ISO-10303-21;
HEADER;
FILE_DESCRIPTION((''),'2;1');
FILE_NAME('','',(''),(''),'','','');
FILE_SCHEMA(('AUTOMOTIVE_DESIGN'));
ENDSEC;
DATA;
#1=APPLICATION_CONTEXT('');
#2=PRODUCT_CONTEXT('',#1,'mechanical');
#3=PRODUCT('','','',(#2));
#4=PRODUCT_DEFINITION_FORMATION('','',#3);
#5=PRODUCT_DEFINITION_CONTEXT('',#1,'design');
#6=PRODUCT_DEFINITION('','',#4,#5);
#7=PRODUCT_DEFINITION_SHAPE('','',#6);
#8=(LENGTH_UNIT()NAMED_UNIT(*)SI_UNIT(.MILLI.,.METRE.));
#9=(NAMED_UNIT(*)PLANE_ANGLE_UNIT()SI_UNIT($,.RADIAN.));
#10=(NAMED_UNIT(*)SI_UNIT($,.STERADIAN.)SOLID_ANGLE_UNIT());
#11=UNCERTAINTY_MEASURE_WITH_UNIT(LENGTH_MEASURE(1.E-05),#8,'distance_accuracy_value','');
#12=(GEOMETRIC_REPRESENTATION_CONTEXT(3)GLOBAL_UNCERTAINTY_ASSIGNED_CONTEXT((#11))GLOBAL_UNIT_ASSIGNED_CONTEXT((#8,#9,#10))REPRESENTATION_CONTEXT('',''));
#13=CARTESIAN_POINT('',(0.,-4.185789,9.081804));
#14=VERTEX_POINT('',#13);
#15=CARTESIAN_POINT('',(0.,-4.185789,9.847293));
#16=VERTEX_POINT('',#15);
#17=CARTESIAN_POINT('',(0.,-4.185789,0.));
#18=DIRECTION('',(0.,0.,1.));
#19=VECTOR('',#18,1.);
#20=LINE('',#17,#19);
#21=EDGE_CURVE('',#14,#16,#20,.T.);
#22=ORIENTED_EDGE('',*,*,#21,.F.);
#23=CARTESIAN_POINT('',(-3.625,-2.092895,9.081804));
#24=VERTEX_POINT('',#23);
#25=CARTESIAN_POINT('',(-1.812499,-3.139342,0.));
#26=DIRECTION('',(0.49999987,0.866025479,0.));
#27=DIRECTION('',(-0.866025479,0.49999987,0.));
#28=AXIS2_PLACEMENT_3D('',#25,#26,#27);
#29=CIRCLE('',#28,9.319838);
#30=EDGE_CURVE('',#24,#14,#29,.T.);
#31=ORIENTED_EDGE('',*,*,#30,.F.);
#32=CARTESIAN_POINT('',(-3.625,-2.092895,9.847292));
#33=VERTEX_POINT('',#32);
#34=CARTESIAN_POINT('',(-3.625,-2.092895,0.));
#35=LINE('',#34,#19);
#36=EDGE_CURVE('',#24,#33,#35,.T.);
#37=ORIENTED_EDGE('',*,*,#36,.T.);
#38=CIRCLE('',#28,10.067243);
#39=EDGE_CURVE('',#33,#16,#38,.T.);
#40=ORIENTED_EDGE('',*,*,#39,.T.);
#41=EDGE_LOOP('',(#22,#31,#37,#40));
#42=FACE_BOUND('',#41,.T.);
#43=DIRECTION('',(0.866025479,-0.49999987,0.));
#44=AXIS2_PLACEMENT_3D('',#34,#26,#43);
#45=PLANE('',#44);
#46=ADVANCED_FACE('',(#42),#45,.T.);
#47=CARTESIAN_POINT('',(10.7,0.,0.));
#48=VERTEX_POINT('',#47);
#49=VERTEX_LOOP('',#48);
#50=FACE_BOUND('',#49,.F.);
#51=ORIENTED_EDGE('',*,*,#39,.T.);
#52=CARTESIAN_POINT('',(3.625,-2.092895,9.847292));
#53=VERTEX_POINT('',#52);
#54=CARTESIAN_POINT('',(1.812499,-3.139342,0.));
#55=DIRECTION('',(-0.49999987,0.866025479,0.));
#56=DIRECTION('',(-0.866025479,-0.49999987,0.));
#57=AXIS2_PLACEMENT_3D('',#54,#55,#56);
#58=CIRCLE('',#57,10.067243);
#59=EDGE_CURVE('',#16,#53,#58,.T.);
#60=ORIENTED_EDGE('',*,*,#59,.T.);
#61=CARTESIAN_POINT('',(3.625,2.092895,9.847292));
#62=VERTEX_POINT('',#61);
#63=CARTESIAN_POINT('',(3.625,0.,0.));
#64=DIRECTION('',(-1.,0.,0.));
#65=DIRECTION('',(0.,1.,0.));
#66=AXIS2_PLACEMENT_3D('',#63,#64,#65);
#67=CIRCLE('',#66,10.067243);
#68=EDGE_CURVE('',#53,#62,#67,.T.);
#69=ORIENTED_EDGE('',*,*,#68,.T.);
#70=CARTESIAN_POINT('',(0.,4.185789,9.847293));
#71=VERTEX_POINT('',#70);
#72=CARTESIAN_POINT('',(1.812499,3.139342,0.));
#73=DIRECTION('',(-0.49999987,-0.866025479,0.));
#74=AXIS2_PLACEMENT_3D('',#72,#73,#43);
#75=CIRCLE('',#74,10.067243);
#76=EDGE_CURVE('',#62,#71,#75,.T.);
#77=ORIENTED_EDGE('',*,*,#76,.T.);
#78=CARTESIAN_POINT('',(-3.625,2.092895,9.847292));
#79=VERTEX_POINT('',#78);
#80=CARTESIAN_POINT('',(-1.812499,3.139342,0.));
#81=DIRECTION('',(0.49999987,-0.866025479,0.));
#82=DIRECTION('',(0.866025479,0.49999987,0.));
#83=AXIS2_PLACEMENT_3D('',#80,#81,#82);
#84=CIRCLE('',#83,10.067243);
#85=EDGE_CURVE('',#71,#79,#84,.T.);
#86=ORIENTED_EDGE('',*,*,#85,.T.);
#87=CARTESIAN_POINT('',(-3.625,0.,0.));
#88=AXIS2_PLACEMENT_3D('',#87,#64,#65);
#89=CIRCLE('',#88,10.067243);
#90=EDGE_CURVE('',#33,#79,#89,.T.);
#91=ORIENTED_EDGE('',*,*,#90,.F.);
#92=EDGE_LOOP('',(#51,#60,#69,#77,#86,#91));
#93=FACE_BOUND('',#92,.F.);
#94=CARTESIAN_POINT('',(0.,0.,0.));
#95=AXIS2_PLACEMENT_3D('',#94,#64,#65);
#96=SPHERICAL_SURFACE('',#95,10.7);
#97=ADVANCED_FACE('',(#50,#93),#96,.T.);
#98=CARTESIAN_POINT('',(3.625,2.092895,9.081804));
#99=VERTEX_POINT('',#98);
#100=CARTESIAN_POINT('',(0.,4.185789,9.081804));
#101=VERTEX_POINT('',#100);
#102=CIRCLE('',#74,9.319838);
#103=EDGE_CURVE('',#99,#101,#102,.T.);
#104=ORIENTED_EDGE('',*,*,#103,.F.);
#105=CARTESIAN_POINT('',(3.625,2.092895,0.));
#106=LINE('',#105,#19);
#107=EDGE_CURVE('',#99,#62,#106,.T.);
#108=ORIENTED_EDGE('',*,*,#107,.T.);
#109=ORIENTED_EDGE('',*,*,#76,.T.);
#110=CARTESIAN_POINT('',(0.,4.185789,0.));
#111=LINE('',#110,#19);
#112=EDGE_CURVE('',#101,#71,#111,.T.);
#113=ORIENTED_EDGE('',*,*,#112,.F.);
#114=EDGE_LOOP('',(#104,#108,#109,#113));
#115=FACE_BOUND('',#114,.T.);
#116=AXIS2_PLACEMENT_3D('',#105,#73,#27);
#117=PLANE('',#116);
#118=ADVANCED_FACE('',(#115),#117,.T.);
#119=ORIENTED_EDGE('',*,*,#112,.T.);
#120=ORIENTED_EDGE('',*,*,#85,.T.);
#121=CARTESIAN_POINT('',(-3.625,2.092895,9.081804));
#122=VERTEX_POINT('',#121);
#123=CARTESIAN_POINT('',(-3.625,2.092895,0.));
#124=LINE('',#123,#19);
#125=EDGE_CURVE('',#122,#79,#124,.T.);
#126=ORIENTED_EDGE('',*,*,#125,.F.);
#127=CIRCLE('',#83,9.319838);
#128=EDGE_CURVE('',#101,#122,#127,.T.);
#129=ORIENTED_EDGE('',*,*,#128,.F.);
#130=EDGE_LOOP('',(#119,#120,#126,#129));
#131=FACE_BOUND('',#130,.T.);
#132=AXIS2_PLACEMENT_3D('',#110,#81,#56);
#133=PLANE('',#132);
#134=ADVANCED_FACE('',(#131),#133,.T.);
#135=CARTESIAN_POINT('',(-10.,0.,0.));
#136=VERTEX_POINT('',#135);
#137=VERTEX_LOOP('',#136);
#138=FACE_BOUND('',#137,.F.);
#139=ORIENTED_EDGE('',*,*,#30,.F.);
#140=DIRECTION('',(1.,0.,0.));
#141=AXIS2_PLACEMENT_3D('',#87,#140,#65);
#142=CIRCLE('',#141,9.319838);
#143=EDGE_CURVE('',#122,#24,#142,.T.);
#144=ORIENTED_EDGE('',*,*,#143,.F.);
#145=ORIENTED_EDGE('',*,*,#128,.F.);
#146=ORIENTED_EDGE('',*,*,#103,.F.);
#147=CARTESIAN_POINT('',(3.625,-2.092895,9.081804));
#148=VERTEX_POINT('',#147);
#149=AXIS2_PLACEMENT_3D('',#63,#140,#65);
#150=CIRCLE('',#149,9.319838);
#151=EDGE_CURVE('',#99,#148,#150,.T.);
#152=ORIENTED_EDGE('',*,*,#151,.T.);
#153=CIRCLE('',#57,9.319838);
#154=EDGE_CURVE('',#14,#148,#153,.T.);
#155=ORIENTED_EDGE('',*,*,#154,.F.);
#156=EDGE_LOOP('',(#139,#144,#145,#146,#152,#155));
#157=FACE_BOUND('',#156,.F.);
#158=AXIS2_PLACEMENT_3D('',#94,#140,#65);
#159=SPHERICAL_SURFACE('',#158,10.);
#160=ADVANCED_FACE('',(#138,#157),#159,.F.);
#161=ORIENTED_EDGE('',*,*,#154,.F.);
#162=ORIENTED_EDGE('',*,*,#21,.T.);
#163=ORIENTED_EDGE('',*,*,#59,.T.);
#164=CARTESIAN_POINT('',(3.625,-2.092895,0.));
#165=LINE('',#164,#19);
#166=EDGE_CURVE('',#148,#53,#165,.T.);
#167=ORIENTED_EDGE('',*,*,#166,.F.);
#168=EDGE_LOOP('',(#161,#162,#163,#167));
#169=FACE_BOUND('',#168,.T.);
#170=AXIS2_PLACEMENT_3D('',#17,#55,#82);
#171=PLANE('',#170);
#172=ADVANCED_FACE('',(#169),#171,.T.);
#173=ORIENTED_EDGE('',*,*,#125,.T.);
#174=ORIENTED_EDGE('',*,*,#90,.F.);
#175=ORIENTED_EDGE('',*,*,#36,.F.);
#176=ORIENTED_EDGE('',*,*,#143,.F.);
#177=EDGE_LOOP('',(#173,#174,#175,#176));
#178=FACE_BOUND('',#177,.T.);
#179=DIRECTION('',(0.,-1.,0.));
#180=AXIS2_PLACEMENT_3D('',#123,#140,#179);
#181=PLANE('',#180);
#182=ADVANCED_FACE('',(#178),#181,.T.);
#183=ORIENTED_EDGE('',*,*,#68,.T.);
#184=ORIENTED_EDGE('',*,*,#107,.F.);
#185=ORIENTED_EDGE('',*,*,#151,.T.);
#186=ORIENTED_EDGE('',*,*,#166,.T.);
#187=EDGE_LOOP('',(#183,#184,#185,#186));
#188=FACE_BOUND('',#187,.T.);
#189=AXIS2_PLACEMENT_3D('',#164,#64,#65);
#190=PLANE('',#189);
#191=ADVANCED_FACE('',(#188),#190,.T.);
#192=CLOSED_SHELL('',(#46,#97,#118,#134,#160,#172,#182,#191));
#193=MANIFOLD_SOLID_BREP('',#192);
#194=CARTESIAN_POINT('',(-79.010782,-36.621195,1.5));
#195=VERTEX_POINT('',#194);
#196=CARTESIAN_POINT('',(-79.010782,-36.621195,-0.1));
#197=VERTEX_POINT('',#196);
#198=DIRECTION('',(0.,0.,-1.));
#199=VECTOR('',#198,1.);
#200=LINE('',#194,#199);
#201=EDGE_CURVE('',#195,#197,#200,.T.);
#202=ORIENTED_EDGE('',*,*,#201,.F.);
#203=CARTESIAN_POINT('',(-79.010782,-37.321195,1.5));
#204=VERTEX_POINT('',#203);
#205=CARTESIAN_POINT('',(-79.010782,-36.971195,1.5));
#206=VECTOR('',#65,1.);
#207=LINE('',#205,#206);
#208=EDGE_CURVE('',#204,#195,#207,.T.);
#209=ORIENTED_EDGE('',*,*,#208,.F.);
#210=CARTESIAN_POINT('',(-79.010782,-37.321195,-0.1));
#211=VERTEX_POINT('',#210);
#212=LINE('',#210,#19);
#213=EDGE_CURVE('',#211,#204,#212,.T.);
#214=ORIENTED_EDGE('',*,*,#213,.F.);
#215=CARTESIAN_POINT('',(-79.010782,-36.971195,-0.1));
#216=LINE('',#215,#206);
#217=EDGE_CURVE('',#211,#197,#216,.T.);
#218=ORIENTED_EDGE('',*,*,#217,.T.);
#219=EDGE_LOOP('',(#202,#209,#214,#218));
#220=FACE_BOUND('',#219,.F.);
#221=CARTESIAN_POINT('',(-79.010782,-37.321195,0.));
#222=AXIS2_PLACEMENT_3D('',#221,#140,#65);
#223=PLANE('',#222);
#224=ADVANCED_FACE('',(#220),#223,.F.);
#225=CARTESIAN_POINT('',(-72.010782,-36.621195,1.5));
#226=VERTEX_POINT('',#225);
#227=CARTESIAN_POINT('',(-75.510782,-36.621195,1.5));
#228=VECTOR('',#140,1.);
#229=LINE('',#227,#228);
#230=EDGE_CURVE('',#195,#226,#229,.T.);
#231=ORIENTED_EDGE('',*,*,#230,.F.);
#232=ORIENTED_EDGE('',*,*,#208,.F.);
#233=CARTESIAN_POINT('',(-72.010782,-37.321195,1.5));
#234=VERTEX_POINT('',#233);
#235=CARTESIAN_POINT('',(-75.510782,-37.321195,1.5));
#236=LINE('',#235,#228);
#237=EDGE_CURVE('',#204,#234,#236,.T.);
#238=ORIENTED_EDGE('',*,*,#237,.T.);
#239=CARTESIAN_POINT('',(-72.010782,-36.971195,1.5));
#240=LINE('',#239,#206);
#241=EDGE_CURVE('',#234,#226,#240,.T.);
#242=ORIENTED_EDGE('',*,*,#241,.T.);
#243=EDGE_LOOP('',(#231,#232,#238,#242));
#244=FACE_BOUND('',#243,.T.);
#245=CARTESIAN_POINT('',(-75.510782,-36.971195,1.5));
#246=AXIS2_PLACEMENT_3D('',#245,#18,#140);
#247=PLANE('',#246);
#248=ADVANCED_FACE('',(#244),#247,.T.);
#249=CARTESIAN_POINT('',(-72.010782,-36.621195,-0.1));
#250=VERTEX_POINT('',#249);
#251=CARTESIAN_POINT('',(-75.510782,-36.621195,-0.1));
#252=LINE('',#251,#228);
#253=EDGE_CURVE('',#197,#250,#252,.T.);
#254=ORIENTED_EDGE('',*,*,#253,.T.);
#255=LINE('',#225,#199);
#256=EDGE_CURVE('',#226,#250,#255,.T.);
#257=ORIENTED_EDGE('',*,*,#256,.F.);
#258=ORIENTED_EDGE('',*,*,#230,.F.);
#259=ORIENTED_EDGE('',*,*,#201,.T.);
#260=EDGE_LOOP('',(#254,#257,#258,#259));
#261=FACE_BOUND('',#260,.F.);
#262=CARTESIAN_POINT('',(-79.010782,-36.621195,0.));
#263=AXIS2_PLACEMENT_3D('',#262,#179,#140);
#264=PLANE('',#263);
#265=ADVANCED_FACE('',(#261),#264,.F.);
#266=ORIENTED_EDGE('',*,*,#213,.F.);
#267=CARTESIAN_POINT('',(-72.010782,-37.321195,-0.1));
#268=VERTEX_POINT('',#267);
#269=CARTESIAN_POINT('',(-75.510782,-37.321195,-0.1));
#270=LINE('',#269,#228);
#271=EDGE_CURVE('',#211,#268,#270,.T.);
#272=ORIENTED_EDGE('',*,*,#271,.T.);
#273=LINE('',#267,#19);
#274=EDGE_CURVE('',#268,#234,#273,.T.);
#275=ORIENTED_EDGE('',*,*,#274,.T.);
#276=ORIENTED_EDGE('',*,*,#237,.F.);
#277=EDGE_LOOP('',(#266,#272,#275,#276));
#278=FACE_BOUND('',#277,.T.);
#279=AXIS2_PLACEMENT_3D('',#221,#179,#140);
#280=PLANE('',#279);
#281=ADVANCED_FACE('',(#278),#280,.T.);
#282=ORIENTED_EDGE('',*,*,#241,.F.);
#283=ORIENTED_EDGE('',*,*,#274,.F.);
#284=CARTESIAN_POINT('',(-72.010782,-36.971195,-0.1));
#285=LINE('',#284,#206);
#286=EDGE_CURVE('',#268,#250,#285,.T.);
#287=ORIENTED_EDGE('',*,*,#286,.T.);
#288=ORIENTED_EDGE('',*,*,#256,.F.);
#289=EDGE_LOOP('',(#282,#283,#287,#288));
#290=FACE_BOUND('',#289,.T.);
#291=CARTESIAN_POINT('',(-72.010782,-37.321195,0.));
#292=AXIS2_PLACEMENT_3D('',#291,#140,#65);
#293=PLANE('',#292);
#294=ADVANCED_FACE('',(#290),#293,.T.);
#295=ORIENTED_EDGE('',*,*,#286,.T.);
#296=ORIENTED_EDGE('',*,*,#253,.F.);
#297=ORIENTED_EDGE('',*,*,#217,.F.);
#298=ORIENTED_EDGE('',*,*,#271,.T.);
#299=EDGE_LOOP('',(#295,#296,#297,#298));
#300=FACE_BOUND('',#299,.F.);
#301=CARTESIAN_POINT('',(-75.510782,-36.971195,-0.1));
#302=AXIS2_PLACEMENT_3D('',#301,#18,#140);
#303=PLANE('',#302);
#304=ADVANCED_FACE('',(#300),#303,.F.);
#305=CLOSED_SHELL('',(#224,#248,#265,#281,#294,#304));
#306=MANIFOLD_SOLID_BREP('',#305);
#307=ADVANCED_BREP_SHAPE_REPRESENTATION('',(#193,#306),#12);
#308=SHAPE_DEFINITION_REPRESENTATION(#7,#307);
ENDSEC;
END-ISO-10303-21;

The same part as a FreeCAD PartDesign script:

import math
import FreeCAD as App
import Part
import Sketcher
Q = App.Units.Quantity


def add_polygon(sketch, points):
    """Adds a closed chain of lines whose ends are joined by coincident constraints."""
    first, n = sketch.GeometryCount, len(points)
    for a, b in zip(points, points[1:] + points[:1]):
        sketch.addGeometry(Part.LineSegment(App.Vector(*a, 0), App.Vector(*b, 0)), False)
    for i in range(n):
        sketch.addConstraint(Sketcher.Constraint("Coincident", first + i, 2, first + (i + 1) % n, 1))

doc = App.newDocument("Part")
body = doc.addObject("PartDesign::Body", "Body")

# Sketch on XY plane
sketch1 = body.newObject("Sketcher::SketchObject", "Sketch")
sketch1.AttachmentSupport = (doc.getObject("XY_Plane"), [""])
sketch1.MapMode = "FlatFace"
sketch1.addGeometry([
    Part.ArcOfCircle(Part.Circle(App.Vector(0, 0, 0), App.Vector(0, 0, 1), 10), math.radians(0), math.radians(180)),
    Part.LineSegment(App.Vector(10, 0, 0), App.Vector(10.7, 0, 0)),
    Part.ArcOfCircle(Part.Circle(App.Vector(0, 0, 0), App.Vector(0, 0, 1), 10.7), math.radians(0), math.radians(180)),
    Part.LineSegment(App.Vector(-10.7, 0, 0), App.Vector(-10, 0, 0)),
], False)
sketch1.addConstraint([
    Sketcher.Constraint("Coincident", 0, 1, 1, 1),
    Sketcher.Constraint("Coincident", 1, 2, 2, 1),
    Sketcher.Constraint("Coincident", 2, 2, 3, 1),
    Sketcher.Constraint("Coincident", 3, 2, 0, 2),
    Sketcher.Constraint("Horizontal", 1),
    Sketcher.Constraint("Horizontal", 3),
    Sketcher.Constraint("Coincident", 0, 3, -1, 1),
    Sketcher.Constraint("Coincident", 2, 3, -1, 1),
    Sketcher.Constraint("PointOnObject", 0, 1, -1),
    Sketcher.Constraint("PointOnObject", 2, 2, -1),
    Sketcher.Constraint("Radius", 0, Q("10 mm")),
    Sketcher.Constraint("Radius", 2, Q("10.7 mm")),
])
revolution = body.newObject("PartDesign::Revolution", "Revolution")
revolution.Profile = sketch1
revolution.ReferenceAxis = (sketch1, ["H_Axis"])
revolution.Angle = 360

# Sketch on XY plane
sketch2 = body.newObject("Sketcher::SketchObject", "Sketch001")
sketch2.AttachmentSupport = (doc.getObject("XY_Plane"), [""])
sketch2.MapMode = "FlatFace"
add_polygon(sketch2, [(3.6, -2.1), (3.6, 2.1), (0, 4.2), (-3.6, 2.1), (-3.6, -2.1), (0, -4.2)])  # lines 0-5
sketch2.addConstraint([
    Sketcher.Constraint("Vertical", 0),
    Sketcher.Constraint("Vertical", 3),
    Sketcher.Constraint("Symmetric", 0, 2, 3, 2, -1, 1),
    Sketcher.Constraint("Symmetric", 1, 2, 4, 2, -1, 1),
    Sketcher.Constraint("PointOnObject", 1, 2, -2),
    Sketcher.Constraint("Parallel", 2, 5),
    Sketcher.Constraint("Horizontal", 0, 2, 2, 2),
    Sketcher.Constraint("Angle", 1, Q("150.000009 deg")),
    Sketcher.Constraint("DistanceX", 2, 2, 0, 2, Q("7.25 mm")),
    Sketcher.Constraint("DistanceY", 0, 1, 0, 2, Q("4.18579 mm")),
])
pocket1 = body.newObject("PartDesign::Pocket", "Pocket")
pocket1.Profile = sketch2
pocket1.Length = 25
pocket1.Reversed = True
body2 = doc.addObject("PartDesign::Body", "Body001")

# Sketch on XY plane
sketch3 = body2.newObject("Sketcher::SketchObject", "Sketch002")
sketch3.AttachmentSupport = (doc.getObject("XY_Plane001"), [""])
sketch3.MapMode = "FlatFace"
add_polygon(sketch3, [(-79, -36.6), (-79, -37.3), (-72, -37.3), (-72, -36.6)])  # lines 0-3
sketch3.addConstraint([
    Sketcher.Constraint("Vertical", 0),
    Sketcher.Constraint("Horizontal", 1),
    Sketcher.Constraint("Vertical", 2),
    Sketcher.Constraint("Horizontal", 3),
    Sketcher.Constraint("DistanceX", 1, 1, 1, 2, Q("7 mm")),
    Sketcher.Constraint("DistanceY", 0, 2, 0, 1, Q("0.7 mm")),
    Sketcher.Constraint("DistanceX", 0, 2, -1, 1, Q("79.010782 mm")),
    Sketcher.Constraint("DistanceY", 0, 2, -1, 1, Q("37.321195 mm")),
])
pad1 = body2.newObject("PartDesign::Pad", "Pad")
pad1.Profile = sketch3
pad1.Type = "TwoLengths"
pad1.Length = 1.5
pad1.Length2 = 0.1

doc.recompute()
